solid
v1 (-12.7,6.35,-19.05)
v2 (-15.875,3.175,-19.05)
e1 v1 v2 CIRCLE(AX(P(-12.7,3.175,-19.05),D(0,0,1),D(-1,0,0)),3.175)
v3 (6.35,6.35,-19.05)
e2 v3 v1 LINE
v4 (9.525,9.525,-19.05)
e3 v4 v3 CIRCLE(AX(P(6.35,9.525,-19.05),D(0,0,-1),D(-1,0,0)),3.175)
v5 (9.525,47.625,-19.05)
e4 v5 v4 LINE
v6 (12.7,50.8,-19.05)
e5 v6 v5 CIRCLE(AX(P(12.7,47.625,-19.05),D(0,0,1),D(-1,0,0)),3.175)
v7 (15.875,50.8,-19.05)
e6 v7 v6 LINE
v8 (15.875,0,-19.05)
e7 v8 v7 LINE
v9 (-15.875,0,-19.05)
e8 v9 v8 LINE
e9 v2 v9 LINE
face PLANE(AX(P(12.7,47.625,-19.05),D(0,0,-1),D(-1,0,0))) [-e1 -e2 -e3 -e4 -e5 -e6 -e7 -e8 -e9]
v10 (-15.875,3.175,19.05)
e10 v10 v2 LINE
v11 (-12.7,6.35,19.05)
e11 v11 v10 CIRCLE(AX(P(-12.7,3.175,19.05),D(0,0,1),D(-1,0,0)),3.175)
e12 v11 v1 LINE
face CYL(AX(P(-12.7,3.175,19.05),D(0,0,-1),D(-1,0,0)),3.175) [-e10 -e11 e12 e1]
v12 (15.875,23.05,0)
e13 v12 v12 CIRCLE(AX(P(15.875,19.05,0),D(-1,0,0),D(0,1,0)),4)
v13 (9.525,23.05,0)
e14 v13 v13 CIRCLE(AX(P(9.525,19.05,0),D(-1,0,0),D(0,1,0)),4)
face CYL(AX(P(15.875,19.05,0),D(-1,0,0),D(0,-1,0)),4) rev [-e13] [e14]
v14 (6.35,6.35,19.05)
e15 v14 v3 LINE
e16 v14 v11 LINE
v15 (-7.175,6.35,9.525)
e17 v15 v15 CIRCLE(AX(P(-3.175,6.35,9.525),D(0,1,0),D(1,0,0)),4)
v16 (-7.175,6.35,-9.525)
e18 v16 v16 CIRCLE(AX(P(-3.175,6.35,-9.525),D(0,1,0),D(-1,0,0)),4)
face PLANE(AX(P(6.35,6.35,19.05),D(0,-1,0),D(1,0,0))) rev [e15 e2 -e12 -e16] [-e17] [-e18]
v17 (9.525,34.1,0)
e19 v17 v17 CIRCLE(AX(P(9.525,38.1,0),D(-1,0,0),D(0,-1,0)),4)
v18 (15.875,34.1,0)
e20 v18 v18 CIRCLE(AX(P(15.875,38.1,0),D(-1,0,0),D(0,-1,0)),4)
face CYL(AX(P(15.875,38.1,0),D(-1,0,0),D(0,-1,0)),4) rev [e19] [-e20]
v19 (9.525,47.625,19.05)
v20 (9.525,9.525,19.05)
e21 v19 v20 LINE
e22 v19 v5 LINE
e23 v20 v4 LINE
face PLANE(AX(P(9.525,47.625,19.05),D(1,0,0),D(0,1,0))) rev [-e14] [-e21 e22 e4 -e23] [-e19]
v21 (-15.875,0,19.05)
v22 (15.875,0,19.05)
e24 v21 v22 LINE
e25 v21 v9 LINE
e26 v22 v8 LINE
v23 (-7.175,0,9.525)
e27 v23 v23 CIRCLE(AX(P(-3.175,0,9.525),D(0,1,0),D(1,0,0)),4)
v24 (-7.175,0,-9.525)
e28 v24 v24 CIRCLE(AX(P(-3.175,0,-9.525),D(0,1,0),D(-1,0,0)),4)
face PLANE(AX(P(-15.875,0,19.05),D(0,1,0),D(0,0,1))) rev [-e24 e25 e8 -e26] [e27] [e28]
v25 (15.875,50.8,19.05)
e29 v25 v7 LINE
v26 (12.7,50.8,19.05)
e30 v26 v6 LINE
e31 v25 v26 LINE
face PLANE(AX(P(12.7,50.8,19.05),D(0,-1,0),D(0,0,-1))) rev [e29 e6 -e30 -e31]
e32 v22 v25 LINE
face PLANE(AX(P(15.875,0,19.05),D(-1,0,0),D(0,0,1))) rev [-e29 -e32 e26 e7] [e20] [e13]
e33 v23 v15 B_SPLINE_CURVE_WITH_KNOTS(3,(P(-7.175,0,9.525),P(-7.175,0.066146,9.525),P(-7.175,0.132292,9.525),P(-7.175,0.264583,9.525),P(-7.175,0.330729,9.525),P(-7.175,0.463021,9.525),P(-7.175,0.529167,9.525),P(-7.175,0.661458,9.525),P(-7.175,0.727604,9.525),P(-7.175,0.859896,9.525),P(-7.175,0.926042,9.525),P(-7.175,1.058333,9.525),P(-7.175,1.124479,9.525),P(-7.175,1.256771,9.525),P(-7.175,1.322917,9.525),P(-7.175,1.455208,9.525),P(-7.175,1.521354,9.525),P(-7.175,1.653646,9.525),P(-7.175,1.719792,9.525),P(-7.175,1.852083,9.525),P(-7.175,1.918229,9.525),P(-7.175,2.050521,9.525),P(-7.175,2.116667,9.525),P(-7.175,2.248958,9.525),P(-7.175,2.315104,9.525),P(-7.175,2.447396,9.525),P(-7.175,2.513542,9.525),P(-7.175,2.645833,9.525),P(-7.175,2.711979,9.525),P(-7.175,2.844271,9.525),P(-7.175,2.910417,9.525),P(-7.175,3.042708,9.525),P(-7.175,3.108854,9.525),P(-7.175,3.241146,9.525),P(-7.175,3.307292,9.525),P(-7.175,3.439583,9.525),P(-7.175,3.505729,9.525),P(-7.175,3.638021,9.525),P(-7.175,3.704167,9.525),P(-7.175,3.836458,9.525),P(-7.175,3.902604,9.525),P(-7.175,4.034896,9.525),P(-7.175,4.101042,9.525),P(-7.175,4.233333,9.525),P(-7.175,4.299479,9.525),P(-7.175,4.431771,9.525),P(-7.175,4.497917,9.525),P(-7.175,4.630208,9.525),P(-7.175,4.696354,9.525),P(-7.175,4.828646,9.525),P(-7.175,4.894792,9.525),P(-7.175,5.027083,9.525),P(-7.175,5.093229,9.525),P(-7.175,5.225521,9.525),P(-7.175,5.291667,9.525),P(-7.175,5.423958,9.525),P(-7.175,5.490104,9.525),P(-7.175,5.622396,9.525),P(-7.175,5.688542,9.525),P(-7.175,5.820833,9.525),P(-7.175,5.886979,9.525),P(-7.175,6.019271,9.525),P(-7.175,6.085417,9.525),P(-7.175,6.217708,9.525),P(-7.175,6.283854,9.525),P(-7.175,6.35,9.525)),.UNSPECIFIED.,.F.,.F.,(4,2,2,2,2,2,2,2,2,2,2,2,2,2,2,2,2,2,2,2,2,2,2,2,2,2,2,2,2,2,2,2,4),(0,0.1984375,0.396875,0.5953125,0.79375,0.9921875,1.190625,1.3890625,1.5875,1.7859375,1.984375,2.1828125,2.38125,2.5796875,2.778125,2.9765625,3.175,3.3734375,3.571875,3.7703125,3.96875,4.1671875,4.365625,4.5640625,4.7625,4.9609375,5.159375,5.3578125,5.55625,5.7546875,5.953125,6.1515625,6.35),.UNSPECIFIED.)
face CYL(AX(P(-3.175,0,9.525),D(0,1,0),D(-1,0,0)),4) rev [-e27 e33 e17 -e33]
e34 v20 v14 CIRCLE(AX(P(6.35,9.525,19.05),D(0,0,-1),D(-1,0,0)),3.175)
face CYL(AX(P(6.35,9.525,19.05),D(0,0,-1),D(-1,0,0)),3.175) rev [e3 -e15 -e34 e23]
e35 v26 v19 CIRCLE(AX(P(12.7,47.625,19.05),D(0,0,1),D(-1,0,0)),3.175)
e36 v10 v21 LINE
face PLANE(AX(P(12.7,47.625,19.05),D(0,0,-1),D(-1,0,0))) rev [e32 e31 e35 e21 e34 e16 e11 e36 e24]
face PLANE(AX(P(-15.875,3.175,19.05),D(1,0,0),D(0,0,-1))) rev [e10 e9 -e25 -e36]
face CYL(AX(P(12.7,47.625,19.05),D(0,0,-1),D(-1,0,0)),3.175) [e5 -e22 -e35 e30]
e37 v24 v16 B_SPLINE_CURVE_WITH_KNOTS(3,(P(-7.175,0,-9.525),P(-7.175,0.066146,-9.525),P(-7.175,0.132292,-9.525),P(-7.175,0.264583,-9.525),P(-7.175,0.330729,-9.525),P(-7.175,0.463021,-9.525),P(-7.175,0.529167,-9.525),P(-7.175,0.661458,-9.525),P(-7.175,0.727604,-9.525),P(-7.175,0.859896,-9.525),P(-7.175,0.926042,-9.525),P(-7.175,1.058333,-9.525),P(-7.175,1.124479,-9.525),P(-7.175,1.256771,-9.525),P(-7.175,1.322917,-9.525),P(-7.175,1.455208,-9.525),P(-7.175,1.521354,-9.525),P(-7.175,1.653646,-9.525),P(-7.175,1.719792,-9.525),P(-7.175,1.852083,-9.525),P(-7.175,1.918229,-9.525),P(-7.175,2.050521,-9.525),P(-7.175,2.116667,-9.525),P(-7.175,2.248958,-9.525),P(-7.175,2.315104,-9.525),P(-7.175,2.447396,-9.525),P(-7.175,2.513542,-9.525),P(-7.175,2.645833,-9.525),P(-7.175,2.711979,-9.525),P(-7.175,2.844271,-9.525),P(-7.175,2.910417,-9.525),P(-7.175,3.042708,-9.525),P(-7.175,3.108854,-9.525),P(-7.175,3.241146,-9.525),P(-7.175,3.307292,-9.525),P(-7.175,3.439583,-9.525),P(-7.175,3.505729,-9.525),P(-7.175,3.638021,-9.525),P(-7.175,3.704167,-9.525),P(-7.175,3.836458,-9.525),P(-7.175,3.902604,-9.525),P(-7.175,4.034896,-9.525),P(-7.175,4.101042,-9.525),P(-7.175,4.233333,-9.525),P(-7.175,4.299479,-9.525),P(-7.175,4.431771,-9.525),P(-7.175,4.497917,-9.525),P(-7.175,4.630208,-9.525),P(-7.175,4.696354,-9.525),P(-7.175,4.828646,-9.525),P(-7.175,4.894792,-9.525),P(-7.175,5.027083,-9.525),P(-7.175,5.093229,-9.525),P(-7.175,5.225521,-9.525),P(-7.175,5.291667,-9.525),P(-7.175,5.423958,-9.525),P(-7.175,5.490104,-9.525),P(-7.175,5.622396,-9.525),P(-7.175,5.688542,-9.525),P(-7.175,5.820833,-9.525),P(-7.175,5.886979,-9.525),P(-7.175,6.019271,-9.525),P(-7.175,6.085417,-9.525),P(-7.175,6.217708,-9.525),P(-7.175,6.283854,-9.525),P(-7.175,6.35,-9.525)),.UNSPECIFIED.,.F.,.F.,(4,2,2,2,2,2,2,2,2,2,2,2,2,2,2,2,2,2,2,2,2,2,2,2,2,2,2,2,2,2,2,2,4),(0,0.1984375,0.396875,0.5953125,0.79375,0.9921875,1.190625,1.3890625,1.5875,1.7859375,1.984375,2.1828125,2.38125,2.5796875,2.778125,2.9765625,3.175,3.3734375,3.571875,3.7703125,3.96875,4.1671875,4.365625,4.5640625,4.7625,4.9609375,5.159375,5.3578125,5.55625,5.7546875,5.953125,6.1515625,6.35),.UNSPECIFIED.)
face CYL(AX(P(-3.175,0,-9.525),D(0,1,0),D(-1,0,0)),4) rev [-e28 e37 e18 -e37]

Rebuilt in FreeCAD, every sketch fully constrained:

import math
import FreeCAD as App
import Part
import Sketcher

V = App.Vector
Q = App.Units.Quantity

doc = App.newDocument("Part")
body = doc.addObject("PartDesign::Body", "Body")

# Sketch on XY plane
sketch1 = doc.addObject("Sketcher::SketchObject", "Sketch")
body.addObject(sketch1)
sketch1.AttachmentSupport = (doc.XY_Plane, [""])
sketch1.MapMode = "FlatFace"
sketch1.addGeometry([
    Part.LineSegment(V(-15.9, 0, 0), V(15.9, 0, 0)),  # 0
    Part.LineSegment(V(15.9, 0, 0), V(15.9, 50.8, 0)),  # 1
    Part.LineSegment(V(15.9, 50.8, 0), V(12.7, 50.8, 0)),  # 2
    Part.ArcOfCircle(Part.Circle(V(12.7, 47.6, 0), V(0, 0, 1), 3.2), math.radians(90), math.radians(180)),  # 3
    Part.LineSegment(V(9.5, 47.6, 0), V(9.5, 9.5, 0)),  # 4
    Part.ArcOfCircle(Part.Circle(V(6.3, 9.5, 0), V(0, 0, 1), 3.2), math.radians(-90), math.radians(0)),  # 5
    Part.LineSegment(V(6.3, 6.3, 0), V(-12.7, 6.3, 0)),  # 6
    Part.ArcOfCircle(Part.Circle(V(-12.7, 3.2, 0), V(0, 0, 1), 3.2), math.radians(90), math.radians(180)),  # 7
    Part.LineSegment(V(-15.9, 3.2, 0), V(-15.9, 0, 0)),  # 8
], False)
sketch1.addConstraint([
    Sketcher.Constraint("Coincident", 0, 2, 1, 1),
    Sketcher.Constraint("Coincident", 1, 2, 2, 1),
    Sketcher.Constraint("Tangent", 2, 2, 3, 1),
    Sketcher.Constraint("Tangent", 3, 2, 4, 1),
    Sketcher.Constraint("Tangent", 4, 2, 5, 2),
    Sketcher.Constraint("Tangent", 5, 1, 6, 1),
    Sketcher.Constraint("Tangent", 6, 2, 7, 1),
    Sketcher.Constraint("Tangent", 7, 2, 8, 1),
    Sketcher.Constraint("Coincident", 8, 2, 0, 1),
    Sketcher.Constraint("Horizontal", 0),
    Sketcher.Constraint("Vertical", 1),
    Sketcher.Constraint("Horizontal", 2),
    Sketcher.Constraint("Vertical", 4),
    Sketcher.Constraint("Horizontal", 6),
    Sketcher.Constraint("Vertical", 8),
    Sketcher.Constraint("Equal", 3, 5),
    Sketcher.Constraint("Equal", 5, 7),
    Sketcher.Constraint("Symmetric", 0, 2, 8, 2, -1, 1),
    Sketcher.Constraint("Equal", 2, 8),
    Sketcher.Constraint("DistanceY", 1, 1, 1, 2, Q("2 in")),
    Sketcher.Constraint("DistanceY", 4, 2, 4, 1, Q("1.5 in")),
    Sketcher.Constraint("Radius", 3, Q("0.125 in")),
    Sketcher.Constraint("DistanceX", 7, 3, 3, 3, Q("1 in")),
])
pad1 = doc.addObject("PartDesign::Pad", "Pad")
body.addObject(pad1)
pad1.Profile = sketch1
pad1.Length = Q("1.5 in")
pad1.Midplane = True

# Sketch on XZ plane
sketch2 = doc.addObject("Sketcher::SketchObject", "Sketch001")
body.addObject(sketch2)
sketch2.AttachmentSupport = (doc.XZ_Plane, [""])
sketch2.MapMode = "FlatFace"
sketch2.AttachmentOffset = App.Placement(V(0, 0, -0.25 * 25.4), App.Rotation())
sketch2.addGeometry([
    Part.Circle(V(-3.2, -9.5, 0), V(0, 0, 1), 4),
    Part.Circle(V(-3.2, 9.5, 0), V(0, 0, 1), 4),
], False)
sketch2.addConstraint([
    Sketcher.Constraint("Equal", 0, 1),
    Sketcher.Constraint("Symmetric", 0, 3, 1, 3, -1),
    Sketcher.Constraint("Diameter", 0, Q("8 mm")),
    Sketcher.Constraint("DistanceY", 0, 3, 1, 3, Q("0.75 in")),
    Sketcher.Constraint("DistanceX", 0, 3, -1, 1, Q("0.125 in")),
])
pocket1 = doc.addObject("PartDesign::Pocket", "Pocket")
body.addObject(pocket1)
pocket1.Profile = sketch2
pocket1.Type = "ThroughAll"
pocket1.Reversed = True

# Sketch on YZ plane
sketch3 = doc.addObject("Sketcher::SketchObject", "Sketch002")
body.addObject(sketch3)
sketch3.AttachmentSupport = (doc.YZ_Plane, [""])
sketch3.MapMode = "FlatFace"
sketch3.AttachmentOffset = App.Placement(V(0, 0, 0.375 * 25.4), App.Rotation())
sketch3.addGeometry([
    Part.Circle(V(38.1, 0, 0), V(0, 0, 1), 4),
    Part.Circle(V(19.1, 0, 0), V(0, 0, 1), 4),
], False)
sketch3.addConstraint([
    Sketcher.Constraint("Equal", 0, 1),
    Sketcher.Constraint("PointOnObject", 0, 3, -1),
    Sketcher.Constraint("PointOnObject", 1, 3, -1),
    Sketcher.Constraint("DistanceX", -1, 1, 0, 3, Q("1.5 in")),
    Sketcher.Constraint("Diameter", 0, Q("8 mm")),
    Sketcher.Constraint("DistanceX", -1, 1, 1, 3, Q("0.75 in")),
])
pocket2 = doc.addObject("PartDesign::Pocket", "Pocket001")
body.addObject(pocket2)
pocket2.Profile = sketch3
pocket2.Type = "ThroughAll"
pocket2.Reversed = True

doc.recompute()
